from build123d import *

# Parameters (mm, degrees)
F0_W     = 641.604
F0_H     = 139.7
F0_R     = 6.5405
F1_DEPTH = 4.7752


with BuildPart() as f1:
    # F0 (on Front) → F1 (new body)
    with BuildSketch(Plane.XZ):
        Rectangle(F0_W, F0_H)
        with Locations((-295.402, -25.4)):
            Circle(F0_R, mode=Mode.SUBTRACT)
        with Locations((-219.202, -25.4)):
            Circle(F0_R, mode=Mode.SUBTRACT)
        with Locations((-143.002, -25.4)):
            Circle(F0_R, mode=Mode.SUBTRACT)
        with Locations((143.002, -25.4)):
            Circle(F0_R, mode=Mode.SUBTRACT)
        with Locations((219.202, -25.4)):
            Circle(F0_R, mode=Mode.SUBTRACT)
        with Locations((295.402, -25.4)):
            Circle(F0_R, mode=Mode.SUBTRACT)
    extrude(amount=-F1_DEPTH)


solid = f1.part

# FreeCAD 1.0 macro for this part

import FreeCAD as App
import Part
import Sketcher
from FreeCAD import Vector
Q = App.Units.Quantity


def add_polygon(sketch, points):
    """Adds a closed chain of lines whose ends are joined by coincident constraints."""
    first, n = sketch.GeometryCount, len(points)
    for a, b in zip(points, points[1:] + points[:1]):
        sketch.addGeometry(Part.LineSegment(App.Vector(*a, 0), App.Vector(*b, 0)), False)
    for i in range(n):
        sketch.addConstraint(Sketcher.Constraint("Coincident", first + i, 2, first + (i + 1) % n, 1))

doc = App.newDocument("Part")
params = doc.addObject("Spreadsheet::Sheet", "Params")
for row, (alias, value) in enumerate([
    ("sketch1_diameter", "0.515 in"),
    ("sketch1_height", "5.5 in"),
    ("sketch1_width", "25.26 in"),
    ("pad1_length", "0.188 in"),
], start=1):
    params.set(f"A{row}", alias)
    params.set(f"B{row}", "=" + value)
    params.setAlias(f"B{row}", alias)

body = doc.addObject("PartDesign::Body", "Body")

sketch1 = body.newObject("Sketcher::SketchObject", "Sketch")
sketch1.AttachmentSupport = (doc.getObject("XZ_Plane"), [""])
sketch1.MapMode = "FlatFace"
add_polygon(sketch1, [(-321, 70), (-321, -70), (321, -70), (321, 70)])
sketch1.addGeometry(Part.Circle(Vector(-295, -25, 0), Vector(0, 0, 1), 7), False)
sketch1.addGeometry(Part.Circle(Vector(-219, -25, 0), Vector(0, 0, 1), 7), False)
sketch1.addGeometry(Part.Circle(Vector(-143, -25, 0), Vector(0, 0, 1), 7), False)
sketch1.addGeometry(Part.Circle(Vector(143, -25, 0), Vector(0, 0, 1), 7), False)
sketch1.addGeometry(Part.Circle(Vector(219, -25, 0), Vector(0, 0, 1), 7), False)
sketch1.addGeometry(Part.Circle(Vector(295, -25, 0), Vector(0, 0, 1), 7), False)
sketch1.addConstraint([
    Sketcher.Constraint("Vertical", 0),
    Sketcher.Constraint("Horizontal", 1),
    Sketcher.Constraint("Vertical", 2),
    Sketcher.Constraint("Horizontal", 3),
    Sketcher.Constraint("Equal", 4, 5),
    Sketcher.Constraint("Equal", 5, 6),
    Sketcher.Constraint("Equal", 6, 7),
    Sketcher.Constraint("Equal", 7, 8),
    Sketcher.Constraint("Equal", 8, 9),
    Sketcher.Constraint("Symmetric", 0, 2, 2, 2, -1, 1),
    Sketcher.Constraint("Symmetric", 6, 3, 7, 3, -2),
    Sketcher.Constraint("Symmetric", 5, 3, 8, 3, -2),
    Sketcher.Constraint("Symmetric", 4, 3, 9, 3, -2),
    Sketcher.Constraint("Horizontal", 4, 3, 5, 3),
    Sketcher.Constraint("Horizontal", 5, 3, 6, 3),
    Sketcher.Constraint("Diameter", 4, Q("0.515 in")),
    Sketcher.Constraint("DistanceY", 0, 2, 0, 1, Q("5.5 in")),
    Sketcher.Constraint("DistanceY", 4, 3, -1, 1, Q("1 in")),
    Sketcher.Constraint("DistanceX", 4, 3, 5, 3, Q("3 in")),
    Sketcher.Constraint("DistanceX", 5, 3, 6, 3, Q("3 in")),
    Sketcher.Constraint("DistanceX", 0, 2, 4, 3, Q("1 in")),
    Sketcher.Constraint("DistanceX", 1, 1, 1, 2, Q("25.26 in")),
])
sketch1.setExpression("Constraints[19]", "Params.sketch1_diameter")
sketch1.setExpression("Constraints[20]", "Params.sketch1_height")
sketch1.setExpression("Constraints[25]", "Params.sketch1_width")
pad1 = body.newObject("PartDesign::Pad", "Pad")
pad1.Profile = sketch1
pad1.setExpression("Length", "Params.pad1_length")
pad1.Reversed = True

doc.recompute()
